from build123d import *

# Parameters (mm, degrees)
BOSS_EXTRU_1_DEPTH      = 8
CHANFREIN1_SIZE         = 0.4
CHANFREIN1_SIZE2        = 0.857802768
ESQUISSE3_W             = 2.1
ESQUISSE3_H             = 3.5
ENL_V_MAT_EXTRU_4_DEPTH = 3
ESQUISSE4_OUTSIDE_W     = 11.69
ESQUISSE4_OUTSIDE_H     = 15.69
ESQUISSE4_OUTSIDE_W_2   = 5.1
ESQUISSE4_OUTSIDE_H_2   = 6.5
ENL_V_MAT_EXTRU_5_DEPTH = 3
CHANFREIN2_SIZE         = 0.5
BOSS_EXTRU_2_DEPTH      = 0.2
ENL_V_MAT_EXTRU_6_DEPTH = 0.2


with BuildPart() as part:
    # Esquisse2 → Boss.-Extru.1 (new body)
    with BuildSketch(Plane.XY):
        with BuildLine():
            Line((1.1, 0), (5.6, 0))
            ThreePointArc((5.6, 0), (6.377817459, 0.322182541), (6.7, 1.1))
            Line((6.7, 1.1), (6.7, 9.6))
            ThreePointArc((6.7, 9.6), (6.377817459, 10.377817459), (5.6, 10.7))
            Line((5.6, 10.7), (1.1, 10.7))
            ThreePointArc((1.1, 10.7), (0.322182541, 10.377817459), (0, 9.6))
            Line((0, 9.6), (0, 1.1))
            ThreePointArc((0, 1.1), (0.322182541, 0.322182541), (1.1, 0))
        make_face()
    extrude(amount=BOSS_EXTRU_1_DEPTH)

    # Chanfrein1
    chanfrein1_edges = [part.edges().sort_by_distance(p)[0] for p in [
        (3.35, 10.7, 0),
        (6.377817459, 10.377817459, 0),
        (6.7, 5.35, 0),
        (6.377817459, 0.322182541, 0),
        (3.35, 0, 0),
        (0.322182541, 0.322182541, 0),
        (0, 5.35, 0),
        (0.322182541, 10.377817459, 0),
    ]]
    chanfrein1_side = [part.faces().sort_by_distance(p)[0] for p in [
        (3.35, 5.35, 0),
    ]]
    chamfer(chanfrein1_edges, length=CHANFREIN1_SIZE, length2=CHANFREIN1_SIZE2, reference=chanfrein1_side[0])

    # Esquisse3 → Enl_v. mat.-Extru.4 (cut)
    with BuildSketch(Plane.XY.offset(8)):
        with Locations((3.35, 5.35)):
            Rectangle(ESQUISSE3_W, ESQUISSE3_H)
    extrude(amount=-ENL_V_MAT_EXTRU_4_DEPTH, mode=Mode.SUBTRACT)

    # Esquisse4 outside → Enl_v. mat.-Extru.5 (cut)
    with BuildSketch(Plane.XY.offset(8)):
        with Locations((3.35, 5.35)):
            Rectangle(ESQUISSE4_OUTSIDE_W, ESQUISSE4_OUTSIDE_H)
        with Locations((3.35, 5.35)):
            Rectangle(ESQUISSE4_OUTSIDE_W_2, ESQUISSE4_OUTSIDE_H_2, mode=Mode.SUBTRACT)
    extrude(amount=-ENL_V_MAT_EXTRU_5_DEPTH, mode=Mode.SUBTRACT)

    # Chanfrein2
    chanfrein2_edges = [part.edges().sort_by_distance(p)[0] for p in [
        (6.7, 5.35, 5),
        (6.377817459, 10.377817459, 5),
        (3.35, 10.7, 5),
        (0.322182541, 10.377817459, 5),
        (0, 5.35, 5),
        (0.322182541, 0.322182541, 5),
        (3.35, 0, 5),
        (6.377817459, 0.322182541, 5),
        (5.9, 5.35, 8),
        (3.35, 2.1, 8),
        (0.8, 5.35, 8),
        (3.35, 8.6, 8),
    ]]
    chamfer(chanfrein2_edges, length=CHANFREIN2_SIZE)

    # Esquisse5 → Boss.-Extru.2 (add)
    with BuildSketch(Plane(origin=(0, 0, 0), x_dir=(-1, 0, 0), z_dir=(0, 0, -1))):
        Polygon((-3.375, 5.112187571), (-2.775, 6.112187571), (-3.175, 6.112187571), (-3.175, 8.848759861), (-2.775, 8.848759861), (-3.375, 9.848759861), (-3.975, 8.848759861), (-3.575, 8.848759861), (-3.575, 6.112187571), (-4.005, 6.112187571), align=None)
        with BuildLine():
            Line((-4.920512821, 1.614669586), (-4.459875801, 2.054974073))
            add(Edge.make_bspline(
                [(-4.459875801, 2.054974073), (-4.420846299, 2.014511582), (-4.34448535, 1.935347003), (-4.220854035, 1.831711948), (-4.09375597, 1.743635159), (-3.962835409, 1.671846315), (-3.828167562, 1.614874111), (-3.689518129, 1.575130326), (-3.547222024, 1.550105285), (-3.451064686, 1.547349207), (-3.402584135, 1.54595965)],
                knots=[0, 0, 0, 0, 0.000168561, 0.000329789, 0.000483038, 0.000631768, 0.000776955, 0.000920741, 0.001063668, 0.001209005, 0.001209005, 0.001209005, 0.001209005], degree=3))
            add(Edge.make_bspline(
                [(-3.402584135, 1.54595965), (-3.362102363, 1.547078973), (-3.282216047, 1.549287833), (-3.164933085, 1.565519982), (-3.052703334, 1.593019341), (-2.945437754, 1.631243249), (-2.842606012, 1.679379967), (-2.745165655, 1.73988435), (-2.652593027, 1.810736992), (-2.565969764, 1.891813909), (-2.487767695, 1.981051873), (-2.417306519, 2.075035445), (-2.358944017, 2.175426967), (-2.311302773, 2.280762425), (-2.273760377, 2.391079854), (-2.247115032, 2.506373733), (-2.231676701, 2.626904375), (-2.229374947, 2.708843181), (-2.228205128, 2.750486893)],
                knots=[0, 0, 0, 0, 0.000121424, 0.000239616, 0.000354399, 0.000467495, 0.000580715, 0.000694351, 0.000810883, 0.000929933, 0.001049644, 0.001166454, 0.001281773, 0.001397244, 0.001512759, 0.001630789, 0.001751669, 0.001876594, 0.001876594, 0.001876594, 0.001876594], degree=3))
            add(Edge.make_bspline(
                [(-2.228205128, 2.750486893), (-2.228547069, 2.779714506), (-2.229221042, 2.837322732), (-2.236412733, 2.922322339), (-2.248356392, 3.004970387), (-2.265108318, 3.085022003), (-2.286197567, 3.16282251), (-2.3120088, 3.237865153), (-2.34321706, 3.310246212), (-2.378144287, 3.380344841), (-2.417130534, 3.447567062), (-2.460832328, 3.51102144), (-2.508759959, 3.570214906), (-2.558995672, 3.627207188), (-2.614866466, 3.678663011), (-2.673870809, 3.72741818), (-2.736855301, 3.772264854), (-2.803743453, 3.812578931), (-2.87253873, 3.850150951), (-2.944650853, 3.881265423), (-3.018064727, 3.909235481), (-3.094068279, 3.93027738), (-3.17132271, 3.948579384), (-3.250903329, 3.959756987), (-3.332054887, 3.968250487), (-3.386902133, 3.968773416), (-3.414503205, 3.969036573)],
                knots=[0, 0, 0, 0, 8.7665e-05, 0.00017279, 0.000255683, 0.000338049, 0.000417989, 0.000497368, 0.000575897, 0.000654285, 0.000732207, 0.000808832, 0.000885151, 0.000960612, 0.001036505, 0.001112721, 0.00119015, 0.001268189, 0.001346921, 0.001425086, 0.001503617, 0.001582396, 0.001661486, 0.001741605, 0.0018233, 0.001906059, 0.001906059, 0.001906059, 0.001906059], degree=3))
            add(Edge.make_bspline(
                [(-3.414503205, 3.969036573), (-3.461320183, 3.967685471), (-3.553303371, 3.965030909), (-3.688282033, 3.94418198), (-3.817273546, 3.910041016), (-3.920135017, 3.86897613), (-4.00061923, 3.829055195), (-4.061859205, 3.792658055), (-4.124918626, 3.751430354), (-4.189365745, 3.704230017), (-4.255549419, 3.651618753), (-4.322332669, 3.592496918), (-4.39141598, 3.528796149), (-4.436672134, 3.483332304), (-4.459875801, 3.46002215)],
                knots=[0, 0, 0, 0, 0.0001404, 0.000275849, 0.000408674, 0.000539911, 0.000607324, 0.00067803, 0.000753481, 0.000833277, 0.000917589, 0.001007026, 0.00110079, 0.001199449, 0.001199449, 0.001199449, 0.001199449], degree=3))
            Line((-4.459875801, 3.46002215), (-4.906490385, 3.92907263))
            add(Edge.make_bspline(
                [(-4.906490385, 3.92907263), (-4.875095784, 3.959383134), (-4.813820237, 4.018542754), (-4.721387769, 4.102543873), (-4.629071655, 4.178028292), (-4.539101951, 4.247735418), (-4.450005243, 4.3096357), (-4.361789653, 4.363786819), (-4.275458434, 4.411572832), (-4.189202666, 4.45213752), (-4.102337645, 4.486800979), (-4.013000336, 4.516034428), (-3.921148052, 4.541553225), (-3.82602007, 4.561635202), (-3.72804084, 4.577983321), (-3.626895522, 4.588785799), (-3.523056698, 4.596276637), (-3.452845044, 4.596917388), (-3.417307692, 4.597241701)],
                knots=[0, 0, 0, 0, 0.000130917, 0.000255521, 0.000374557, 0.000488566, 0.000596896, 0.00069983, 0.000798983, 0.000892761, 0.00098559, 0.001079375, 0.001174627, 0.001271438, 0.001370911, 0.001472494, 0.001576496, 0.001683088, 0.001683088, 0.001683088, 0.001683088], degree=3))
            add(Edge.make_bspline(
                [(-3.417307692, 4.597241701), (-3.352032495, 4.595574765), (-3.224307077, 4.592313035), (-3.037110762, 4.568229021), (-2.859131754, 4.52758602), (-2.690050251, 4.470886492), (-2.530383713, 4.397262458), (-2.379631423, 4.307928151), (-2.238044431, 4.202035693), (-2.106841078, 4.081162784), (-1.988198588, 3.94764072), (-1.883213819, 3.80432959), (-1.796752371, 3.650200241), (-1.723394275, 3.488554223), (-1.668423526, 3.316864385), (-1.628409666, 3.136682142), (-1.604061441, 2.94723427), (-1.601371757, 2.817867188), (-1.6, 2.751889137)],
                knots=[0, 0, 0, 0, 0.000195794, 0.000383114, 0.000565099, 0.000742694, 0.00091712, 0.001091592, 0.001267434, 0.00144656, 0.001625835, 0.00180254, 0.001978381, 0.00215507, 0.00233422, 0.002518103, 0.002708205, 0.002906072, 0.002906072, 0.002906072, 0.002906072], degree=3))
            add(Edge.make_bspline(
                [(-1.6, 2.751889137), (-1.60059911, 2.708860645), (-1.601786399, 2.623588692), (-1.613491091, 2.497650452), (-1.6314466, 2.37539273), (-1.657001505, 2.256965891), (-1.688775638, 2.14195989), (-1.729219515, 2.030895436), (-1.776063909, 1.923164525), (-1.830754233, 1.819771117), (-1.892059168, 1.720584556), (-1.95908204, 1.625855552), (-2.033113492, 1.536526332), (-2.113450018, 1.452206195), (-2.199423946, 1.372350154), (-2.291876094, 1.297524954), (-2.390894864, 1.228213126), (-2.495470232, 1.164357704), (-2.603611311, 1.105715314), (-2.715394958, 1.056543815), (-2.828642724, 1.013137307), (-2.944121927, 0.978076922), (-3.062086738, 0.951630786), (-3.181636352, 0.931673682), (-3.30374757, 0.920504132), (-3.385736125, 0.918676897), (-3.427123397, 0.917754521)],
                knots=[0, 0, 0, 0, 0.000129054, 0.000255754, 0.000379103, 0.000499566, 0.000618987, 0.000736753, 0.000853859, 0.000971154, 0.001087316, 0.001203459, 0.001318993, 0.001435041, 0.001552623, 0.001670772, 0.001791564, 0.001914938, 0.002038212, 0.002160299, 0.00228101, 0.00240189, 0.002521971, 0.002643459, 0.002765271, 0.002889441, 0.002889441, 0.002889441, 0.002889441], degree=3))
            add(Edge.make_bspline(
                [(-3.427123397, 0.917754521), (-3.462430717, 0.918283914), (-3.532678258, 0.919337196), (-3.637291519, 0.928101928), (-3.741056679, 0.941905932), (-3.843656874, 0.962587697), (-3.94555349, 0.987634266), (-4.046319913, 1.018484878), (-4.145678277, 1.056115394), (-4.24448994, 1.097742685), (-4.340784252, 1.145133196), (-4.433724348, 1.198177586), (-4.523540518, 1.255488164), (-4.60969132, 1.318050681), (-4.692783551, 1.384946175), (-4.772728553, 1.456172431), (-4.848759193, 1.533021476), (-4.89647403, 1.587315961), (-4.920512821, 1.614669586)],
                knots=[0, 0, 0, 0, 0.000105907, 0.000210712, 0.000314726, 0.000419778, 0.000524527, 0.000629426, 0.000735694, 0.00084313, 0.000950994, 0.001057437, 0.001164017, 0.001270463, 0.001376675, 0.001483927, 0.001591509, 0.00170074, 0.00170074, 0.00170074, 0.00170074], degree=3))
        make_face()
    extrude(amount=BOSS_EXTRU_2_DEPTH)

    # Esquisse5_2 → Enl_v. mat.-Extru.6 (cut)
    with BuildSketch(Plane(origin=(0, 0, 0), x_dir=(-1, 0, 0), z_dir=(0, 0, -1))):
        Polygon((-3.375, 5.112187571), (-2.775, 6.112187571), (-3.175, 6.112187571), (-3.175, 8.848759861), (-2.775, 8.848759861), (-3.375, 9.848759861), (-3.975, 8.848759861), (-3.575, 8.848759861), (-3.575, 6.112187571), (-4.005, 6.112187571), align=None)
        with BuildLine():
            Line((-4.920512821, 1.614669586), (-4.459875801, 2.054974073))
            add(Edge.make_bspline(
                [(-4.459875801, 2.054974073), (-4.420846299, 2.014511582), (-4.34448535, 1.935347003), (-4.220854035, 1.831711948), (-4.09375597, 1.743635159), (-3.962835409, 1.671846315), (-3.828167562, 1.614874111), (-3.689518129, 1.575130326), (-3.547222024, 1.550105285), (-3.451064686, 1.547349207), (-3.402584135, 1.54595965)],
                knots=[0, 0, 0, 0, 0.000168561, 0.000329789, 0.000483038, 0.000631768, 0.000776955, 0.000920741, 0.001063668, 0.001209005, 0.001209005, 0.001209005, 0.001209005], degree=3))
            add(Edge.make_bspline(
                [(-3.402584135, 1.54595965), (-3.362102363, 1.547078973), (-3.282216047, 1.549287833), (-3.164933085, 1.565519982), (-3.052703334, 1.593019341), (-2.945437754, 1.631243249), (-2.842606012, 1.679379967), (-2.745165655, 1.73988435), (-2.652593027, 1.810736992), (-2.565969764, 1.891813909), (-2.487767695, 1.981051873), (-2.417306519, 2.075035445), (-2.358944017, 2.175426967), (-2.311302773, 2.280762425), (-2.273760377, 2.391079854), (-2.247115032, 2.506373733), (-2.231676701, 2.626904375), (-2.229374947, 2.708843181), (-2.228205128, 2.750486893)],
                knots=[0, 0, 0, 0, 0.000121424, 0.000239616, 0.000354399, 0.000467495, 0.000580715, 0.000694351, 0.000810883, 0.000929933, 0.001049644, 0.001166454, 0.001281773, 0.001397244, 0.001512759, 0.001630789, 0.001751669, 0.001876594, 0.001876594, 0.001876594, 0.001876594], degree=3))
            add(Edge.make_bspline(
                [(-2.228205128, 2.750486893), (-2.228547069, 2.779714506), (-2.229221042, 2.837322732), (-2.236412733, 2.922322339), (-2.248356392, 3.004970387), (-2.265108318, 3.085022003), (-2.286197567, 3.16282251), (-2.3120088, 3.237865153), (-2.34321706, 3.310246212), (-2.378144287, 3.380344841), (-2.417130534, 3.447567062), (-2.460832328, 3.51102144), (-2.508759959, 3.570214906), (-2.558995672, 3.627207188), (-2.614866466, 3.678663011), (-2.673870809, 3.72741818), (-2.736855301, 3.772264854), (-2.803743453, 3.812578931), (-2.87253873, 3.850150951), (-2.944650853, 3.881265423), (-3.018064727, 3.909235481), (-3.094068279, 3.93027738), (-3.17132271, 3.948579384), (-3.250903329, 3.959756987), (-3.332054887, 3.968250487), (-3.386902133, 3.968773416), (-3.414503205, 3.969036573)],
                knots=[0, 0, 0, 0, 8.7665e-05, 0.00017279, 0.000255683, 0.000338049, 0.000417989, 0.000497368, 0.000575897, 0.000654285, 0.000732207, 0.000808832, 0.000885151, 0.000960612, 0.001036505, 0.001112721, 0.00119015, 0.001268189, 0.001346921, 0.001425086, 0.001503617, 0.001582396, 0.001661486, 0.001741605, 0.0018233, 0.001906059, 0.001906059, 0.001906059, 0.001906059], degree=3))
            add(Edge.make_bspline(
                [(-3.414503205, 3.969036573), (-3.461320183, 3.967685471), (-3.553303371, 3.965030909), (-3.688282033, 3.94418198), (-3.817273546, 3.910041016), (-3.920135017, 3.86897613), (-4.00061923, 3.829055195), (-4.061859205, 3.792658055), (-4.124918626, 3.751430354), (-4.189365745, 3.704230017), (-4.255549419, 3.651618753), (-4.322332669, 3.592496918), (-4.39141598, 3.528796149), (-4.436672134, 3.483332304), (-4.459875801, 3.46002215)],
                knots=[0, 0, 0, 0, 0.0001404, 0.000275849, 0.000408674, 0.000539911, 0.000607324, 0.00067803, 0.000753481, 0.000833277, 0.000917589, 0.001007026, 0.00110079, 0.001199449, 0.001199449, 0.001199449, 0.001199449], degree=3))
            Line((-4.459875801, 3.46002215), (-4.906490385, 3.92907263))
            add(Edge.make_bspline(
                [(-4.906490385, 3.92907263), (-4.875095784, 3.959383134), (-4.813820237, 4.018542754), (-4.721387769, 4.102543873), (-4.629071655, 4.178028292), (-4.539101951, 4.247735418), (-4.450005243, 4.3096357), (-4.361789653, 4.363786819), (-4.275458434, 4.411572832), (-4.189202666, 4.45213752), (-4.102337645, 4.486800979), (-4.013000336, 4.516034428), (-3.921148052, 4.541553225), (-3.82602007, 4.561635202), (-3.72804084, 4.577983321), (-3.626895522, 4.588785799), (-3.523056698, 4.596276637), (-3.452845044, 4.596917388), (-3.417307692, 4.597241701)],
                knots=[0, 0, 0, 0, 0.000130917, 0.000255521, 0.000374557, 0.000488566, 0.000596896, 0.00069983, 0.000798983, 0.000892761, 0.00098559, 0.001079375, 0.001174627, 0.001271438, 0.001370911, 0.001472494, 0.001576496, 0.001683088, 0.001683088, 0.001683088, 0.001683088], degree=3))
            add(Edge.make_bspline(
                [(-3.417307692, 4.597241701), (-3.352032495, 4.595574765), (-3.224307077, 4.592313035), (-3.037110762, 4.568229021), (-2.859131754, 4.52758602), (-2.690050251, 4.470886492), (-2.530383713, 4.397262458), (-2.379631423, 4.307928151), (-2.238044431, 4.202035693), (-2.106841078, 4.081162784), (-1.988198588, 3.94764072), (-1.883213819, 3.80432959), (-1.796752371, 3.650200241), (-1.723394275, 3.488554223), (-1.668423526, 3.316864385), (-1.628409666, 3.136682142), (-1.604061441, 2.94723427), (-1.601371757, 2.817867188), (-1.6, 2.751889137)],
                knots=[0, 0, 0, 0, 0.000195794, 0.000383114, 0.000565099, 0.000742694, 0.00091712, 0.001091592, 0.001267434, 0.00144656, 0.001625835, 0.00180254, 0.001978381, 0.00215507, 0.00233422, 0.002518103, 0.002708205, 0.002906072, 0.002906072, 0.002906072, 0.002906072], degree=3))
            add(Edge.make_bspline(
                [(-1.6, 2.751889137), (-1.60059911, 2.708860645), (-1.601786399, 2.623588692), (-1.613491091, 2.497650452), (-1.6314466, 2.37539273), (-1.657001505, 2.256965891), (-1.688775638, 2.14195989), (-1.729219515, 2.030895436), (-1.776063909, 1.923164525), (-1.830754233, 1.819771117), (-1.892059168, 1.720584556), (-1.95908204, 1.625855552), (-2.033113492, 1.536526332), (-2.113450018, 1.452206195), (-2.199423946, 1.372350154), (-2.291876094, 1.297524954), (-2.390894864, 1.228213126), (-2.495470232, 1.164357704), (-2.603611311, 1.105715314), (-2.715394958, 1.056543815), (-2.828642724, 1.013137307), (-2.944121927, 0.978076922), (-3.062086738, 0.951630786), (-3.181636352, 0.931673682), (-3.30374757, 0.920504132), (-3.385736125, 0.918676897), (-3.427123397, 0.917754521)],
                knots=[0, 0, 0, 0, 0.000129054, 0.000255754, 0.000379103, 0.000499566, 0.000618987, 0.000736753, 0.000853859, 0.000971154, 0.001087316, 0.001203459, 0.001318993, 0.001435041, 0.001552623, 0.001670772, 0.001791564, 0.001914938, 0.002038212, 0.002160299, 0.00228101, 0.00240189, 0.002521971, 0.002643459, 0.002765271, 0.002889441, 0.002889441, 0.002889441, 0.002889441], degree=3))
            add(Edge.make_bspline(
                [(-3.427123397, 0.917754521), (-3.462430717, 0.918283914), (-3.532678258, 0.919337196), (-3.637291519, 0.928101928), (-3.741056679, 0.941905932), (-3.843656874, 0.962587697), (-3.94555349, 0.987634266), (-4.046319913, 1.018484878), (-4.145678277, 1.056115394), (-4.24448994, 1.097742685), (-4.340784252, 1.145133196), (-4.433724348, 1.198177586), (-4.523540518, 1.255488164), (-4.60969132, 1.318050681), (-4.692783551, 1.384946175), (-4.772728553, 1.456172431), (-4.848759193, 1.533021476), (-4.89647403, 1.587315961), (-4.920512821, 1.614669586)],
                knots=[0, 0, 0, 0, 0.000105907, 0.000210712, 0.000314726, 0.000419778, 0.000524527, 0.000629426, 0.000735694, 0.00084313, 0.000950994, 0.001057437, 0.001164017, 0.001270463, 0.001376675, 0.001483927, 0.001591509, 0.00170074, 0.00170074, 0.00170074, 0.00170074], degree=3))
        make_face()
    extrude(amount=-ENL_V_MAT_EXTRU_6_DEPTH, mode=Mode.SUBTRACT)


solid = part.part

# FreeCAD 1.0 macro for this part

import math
import FreeCAD as App
import Part
import Sketcher
from FreeCAD import Vector
Q = App.Units.Quantity


def edges_at(feature, points):
    """Names of the edges that pass closest to the given points."""
    edges = feature.Shape.Edges
    near = lambda p: min(range(len(edges)), key=lambda i: edges[i].distToShape(Part.Vertex(*p))[0])
    return sorted({f"Edge{near(p) + 1}" for p in points})

doc = App.newDocument("Part")
body = doc.addObject("PartDesign::Body", "Body")
body.AllowCompound = True

# Sketch on XY plane
sketch1 = body.newObject("Sketcher::SketchObject", "Sketch")
sketch1.AttachmentSupport = (doc.getObject("XY_Plane"), [""])
sketch1.MapMode = "FlatFace"
sketch1.addGeometry([
    Part.LineSegment(Vector(1.1, 0, 0), Vector(5.6, 0, 0)),  # 0
    Part.ArcOfCircle(Part.Circle(Vector(5.6, 1.1, 0), Vector(0, 0, 1), 1.1), math.radians(-90), math.radians(0)),  # 1
    Part.LineSegment(Vector(6.7, 1.1, 0), Vector(6.7, 9.6, 0)),  # 2
    Part.ArcOfCircle(Part.Circle(Vector(5.6, 9.6, 0), Vector(0, 0, 1), 1.1), math.radians(0), math.radians(90)),  # 3
    Part.LineSegment(Vector(5.6, 10.7, 0), Vector(1.1, 10.7, 0)),  # 4
    Part.ArcOfCircle(Part.Circle(Vector(1.1, 9.6, 0), Vector(0, 0, 1), 1.1), math.radians(90), math.radians(180)),  # 5
    Part.LineSegment(Vector(0, 9.6, 0), Vector(0, 1.1, 0)),  # 6
    Part.ArcOfCircle(Part.Circle(Vector(1.1, 1.1, 0), Vector(0, 0, 1), 1.1), math.radians(-180), math.radians(-90)),  # 7
], False)
sketch1.addConstraint([
    Sketcher.Constraint("Tangent", 0, 2, 1, 1),
    Sketcher.Constraint("Tangent", 1, 2, 2, 1),
    Sketcher.Constraint("Tangent", 2, 2, 3, 1),
    Sketcher.Constraint("Tangent", 3, 2, 4, 1),
    Sketcher.Constraint("Tangent", 4, 2, 5, 1),
    Sketcher.Constraint("Tangent", 5, 2, 6, 1),
    Sketcher.Constraint("Tangent", 6, 2, 7, 1),
    Sketcher.Constraint("Tangent", 7, 2, 0, 1),
    Sketcher.Constraint("Horizontal", 0),
    Sketcher.Constraint("Vertical", 2),
    Sketcher.Constraint("Horizontal", 4),
    Sketcher.Constraint("Vertical", 6),
    Sketcher.Constraint("Equal", 1, 3),
    Sketcher.Constraint("Equal", 3, 5),
    Sketcher.Constraint("Equal", 5, 7),
    Sketcher.Constraint("PointOnObject", 0, 2, -1),
    Sketcher.Constraint("PointOnObject", 5, 2, -2),
    Sketcher.Constraint("Radius", 1, Q("1.1 mm")),
    Sketcher.Constraint("DistanceX", 0, 1, 0, 2, Q("4.5 mm")),
    Sketcher.Constraint("DistanceY", 2, 1, 2, 2, Q("8.5 mm")),
])
pad1 = body.newObject("PartDesign::Pad", "Pad")
pad1.Profile = sketch1
pad1.Length = 8
doc.recompute()

chamfer = body.newObject("PartDesign::Chamfer", "Chamfer")
chamfer.Base = (pad1, edges_at(pad1, [
    (3.35, 10.7, 0),
    (6.378, 10.378, 0),
    (6.7, 5.35, 0),
    (6.378, 0.322, 0),
    (3.35, 0, 0),
    (0.322, 0.322, 0),
    (0, 5.35, 0),
    (0.322, 10.378, 0),
]))
chamfer.ChamferType = "Two distances"
chamfer.Size = 0.4
chamfer.Size2 = 0.857803
chamfer.FlipDirection = True

# Sketch on XY plane
sketch2 = body.newObject("Sketcher::SketchObject", "Sketch001")
sketch2.AttachmentSupport = (doc.getObject("XY_Plane"), [""])
sketch2.MapMode = "FlatFace"
sketch2.AttachmentOffset = App.Placement(Vector(0, 0, 8), App.Rotation())
sketch2.addGeometry([
    Part.LineSegment(Vector(2.3, 7.1, 0), Vector(2.3, 3.6, 0)),
    Part.LineSegment(Vector(2.3, 3.6, 0), Vector(4.4, 3.6, 0)),
    Part.LineSegment(Vector(4.4, 3.6, 0), Vector(4.4, 7.1, 0)),
    Part.LineSegment(Vector(4.4, 7.1, 0), Vector(2.3, 7.1, 0)),
], False)
sketch2.addConstraint([
    Sketcher.Constraint("Coincident", 0, 2, 1, 1),
    Sketcher.Constraint("Coincident", 1, 2, 2, 1),
    Sketcher.Constraint("Coincident", 2, 2, 3, 1),
    Sketcher.Constraint("Coincident", 3, 2, 0, 1),
    Sketcher.Constraint("Vertical", 0),
    Sketcher.Constraint("Horizontal", 1),
    Sketcher.Constraint("Vertical", 2),
    Sketcher.Constraint("Horizontal", 3),
    Sketcher.Constraint("DistanceX", 1, 1, 1, 2, Q("2.1 mm")),
    Sketcher.Constraint("DistanceY", 0, 2, 0, 1, Q("3.5 mm")),
    Sketcher.Constraint("DistanceX", -1, 1, 0, 2, Q("2.3 mm")),
    Sketcher.Constraint("DistanceY", -1, 1, 0, 2, Q("3.6 mm")),
])
pocket1 = body.newObject("PartDesign::Pocket", "Pocket")
pocket1.Profile = sketch2
pocket1.Length = 3

# Sketch on XY plane
sketch3 = body.newObject("Sketcher::SketchObject", "Sketch002")
sketch3.AttachmentSupport = (doc.getObject("XY_Plane"), [""])
sketch3.MapMode = "FlatFace"
sketch3.AttachmentOffset = App.Placement(Vector(0, 0, 8), App.Rotation())
sketch3.addGeometry([
    Part.LineSegment(Vector(-2.495, 13.195, 0), Vector(-2.495, -2.495, 0)),  # 0
    Part.LineSegment(Vector(-2.495, -2.495, 0), Vector(9.195, -2.495, 0)),  # 1
    Part.LineSegment(Vector(9.195, -2.495, 0), Vector(9.195, 13.195, 0)),  # 2
    Part.LineSegment(Vector(9.195, 13.195, 0), Vector(-2.495, 13.195, 0)),  # 3
    Part.LineSegment(Vector(5.9, 2.1, 0), Vector(0.8, 2.1, 0)),  # 4
    Part.LineSegment(Vector(0.8, 2.1, 0), Vector(0.8, 8.6, 0)),  # 5
    Part.LineSegment(Vector(0.8, 8.6, 0), Vector(5.9, 8.6, 0)),  # 6
    Part.LineSegment(Vector(5.9, 8.6, 0), Vector(5.9, 2.1, 0)),  # 7
], False)
sketch3.addConstraint([
    Sketcher.Constraint("Coincident", 0, 2, 1, 1),
    Sketcher.Constraint("Coincident", 1, 2, 2, 1),
    Sketcher.Constraint("Coincident", 2, 2, 3, 1),
    Sketcher.Constraint("Coincident", 3, 2, 0, 1),
    Sketcher.Constraint("Coincident", 4, 2, 5, 1),
    Sketcher.Constraint("Coincident", 5, 2, 6, 1),
    Sketcher.Constraint("Coincident", 6, 2, 7, 1),
    Sketcher.Constraint("Coincident", 7, 2, 4, 1),
    Sketcher.Constraint("Vertical", 0),
    Sketcher.Constraint("Horizontal", 1),
    Sketcher.Constraint("Vertical", 2),
    Sketcher.Constraint("Horizontal", 3),
    Sketcher.Constraint("Horizontal", 4),
    Sketcher.Constraint("Vertical", 5),
    Sketcher.Constraint("Horizontal", 6),
    Sketcher.Constraint("Vertical", 7),
    Sketcher.Constraint("DistanceX", 4, 2, 4, 1, Q("5.1 mm")),
    Sketcher.Constraint("DistanceY", 5, 1, 5, 2, Q("6.5 mm")),
    Sketcher.Constraint("DistanceX", 1, 1, 1, 2, Q("11.69 mm")),
    Sketcher.Constraint("DistanceY", 0, 2, 0, 1, Q("15.69 mm")),
    Sketcher.Constraint("DistanceX", -1, 1, 4, 2, Q("0.8 mm")),
    Sketcher.Constraint("DistanceY", -1, 1, 4, 2, Q("2.1 mm")),
    Sketcher.Constraint("DistanceX", 0, 2, -1, 1, Q("2.495 mm")),
    Sketcher.Constraint("DistanceY", 0, 2, -1, 1, Q("2.495 mm")),
])
pocket2 = body.newObject("PartDesign::Pocket", "Pocket001")
pocket2.Profile = sketch3
pocket2.Length = 3
doc.recompute()

chamfer2 = body.newObject("PartDesign::Chamfer", "Chamfer001")
chamfer2.Base = (pocket2, edges_at(pocket2, [
    (6.7, 5.35, 5),
    (6.378, 10.378, 5),
    (3.35, 10.7, 5),
    (0.322, 10.378, 5),
    (0, 5.35, 5),
    (0.322, 0.322, 5),
    (3.35, 0, 5),
    (6.378, 0.322, 5),
    (5.9, 5.35, 8),
    (3.35, 2.1, 8),
    (0.8, 5.35, 8),
    (3.35, 8.6, 8),
]))
chamfer2.Size = 0.5

# Sketch on XY plane
sketch4 = body.newObject("Sketcher::SketchObject", "Sketch003")
sketch4.AttachmentSupport = (doc.getObject("XY_Plane"), [""])
sketch4.MapMode = "FlatFace"
sketch4.addGeometry([
    Part.LineSegment(Vector(3.375, 5.112188, 0), Vector(2.775, 6.112188, 0)),  # 0
    Part.LineSegment(Vector(2.775, 6.112188, 0), Vector(3.175, 6.112188, 0)),  # 1
    Part.LineSegment(Vector(3.175, 6.112188, 0), Vector(3.175, 8.84876, 0)),  # 2
    Part.LineSegment(Vector(3.175, 8.84876, 0), Vector(2.775, 8.84876, 0)),  # 3
    Part.LineSegment(Vector(2.775, 8.84876, 0), Vector(3.375, 9.84876, 0)),  # 4
    Part.LineSegment(Vector(3.375, 9.84876, 0), Vector(3.975, 8.84876, 0)),  # 5
    Part.LineSegment(Vector(3.975, 8.84876, 0), Vector(3.575, 8.84876, 0)),  # 6
    Part.LineSegment(Vector(3.575, 8.84876, 0), Vector(3.575, 6.112188, 0)),  # 7
    Part.LineSegment(Vector(3.575, 6.112188, 0), Vector(4.005, 6.112188, 0)),  # 8
    Part.LineSegment(Vector(4.005, 6.112188, 0), Vector(3.375, 5.112188, 0)),  # 9
    Part.LineSegment(Vector(4.459876, 2.054974, 0), Vector(4.920513, 1.61467, 0)),  # 10
    Part.BSplineCurve([Vector(3.427123, 0.917755, 0), Vector(3.462431, 0.918284, 0), Vector(3.532678, 0.919337, 0), Vector(3.637292, 0.928102, 0), Vector(3.741057, 0.941906, 0), Vector(3.843657, 0.962588, 0), Vector(3.945553, 0.987634, 0), Vector(4.04632, 1.018485, 0), Vector(4.145678, 1.056115, 0), Vector(4.24449, 1.097743, 0), Vector(4.340784, 1.145133, 0), Vector(4.433724, 1.198178, 0), Vector(4.523541, 1.255488, 0), Vector(4.609691, 1.318051, 0), Vector(4.692784, 1.384946, 0), Vector(4.772729, 1.456172, 0), Vector(4.848759, 1.533021, 0), Vector(4.896474, 1.587316, 0), Vector(4.920513, 1.61467, 0)], [4, 1, 1, 1, 1, 1, 1, 1, 1, 1, 1, 1, 1, 1, 1, 1, 4], [0, 0.000105907, 0.000210712, 0.000314726, 0.000419778, 0.000524527, 0.000629426, 0.000735694, 0.00084313, 0.000950994, 0.001057437, 0.001164017, 0.001270463, 0.001376675, 0.001483927, 0.001591509, 0.00170074], False, 3, [1, 1, 1, 1, 1, 1, 1, 1, 1, 1, 1, 1, 1, 1, 1, 1, 1, 1, 1], False),  # 11
    Part.BSplineCurve([Vector(1.6, 2.751889, 0), Vector(1.600599, 2.708861, 0), Vector(1.601786, 2.623589, 0), Vector(1.613491, 2.49765, 0), Vector(1.631447, 2.375393, 0), Vector(1.657002, 2.256966, 0), Vector(1.688776, 2.14196, 0), Vector(1.72922, 2.030895, 0), Vector(1.776064, 1.923165, 0), Vector(1.830754, 1.819771, 0), Vector(1.892059, 1.720585, 0), Vector(1.959082, 1.625856, 0), Vector(2.033113, 1.536526, 0), Vector(2.11345, 1.452206, 0), Vector(2.199424, 1.37235, 0), Vector(2.291876, 1.297525, 0), Vector(2.390895, 1.228213, 0), Vector(2.49547, 1.164358, 0), Vector(2.603611, 1.105715, 0), Vector(2.715395, 1.056544, 0), Vector(2.828643, 1.013137, 0), Vector(2.944122, 0.978077, 0), Vector(3.062087, 0.951631, 0), Vector(3.181636, 0.931674, 0), Vector(3.303748, 0.920504, 0), Vector(3.385736, 0.918677, 0), Vector(3.427123, 0.917755, 0)], [4, 1, 1, 1, 1, 1, 1, 1, 1, 1, 1, 1, 1, 1, 1, 1, 1, 1, 1, 1, 1, 1, 1, 1, 4], [0, 0.000129054, 0.000255754, 0.000379103, 0.000499566, 0.000618987, 0.000736753, 0.000853859, 0.000971154, 0.001087316, 0.001203459, 0.001318993, 0.001435041, 0.001552623, 0.001670772, 0.001791564, 0.001914938, 0.002038212, 0.002160299, 0.00228101, 0.00240189, 0.002521971, 0.002643459, 0.002765271, 0.002889441], False, 3, [1, 1, 1, 1, 1, 1, 1, 1, 1, 1, 1, 1, 1, 1, 1, 1, 1, 1, 1, 1, 1, 1, 1, 1, 1, 1, 1], False),  # 12
    Part.BSplineCurve([Vector(3.417308, 4.597242, 0), Vector(3.352032, 4.595575, 0), Vector(3.224307, 4.592313, 0), Vector(3.037111, 4.568229, 0), Vector(2.859132, 4.527586, 0), Vector(2.69005, 4.470886, 0), Vector(2.530384, 4.397262, 0), Vector(2.379631, 4.307928, 0), Vector(2.238044, 4.202036, 0), Vector(2.106841, 4.081163, 0), Vector(1.988199, 3.947641, 0), Vector(1.883214, 3.80433, 0), Vector(1.796752, 3.6502, 0), Vector(1.723394, 3.488554, 0), Vector(1.668424, 3.316864, 0), Vector(1.62841, 3.136682, 0), Vector(1.604061, 2.947234, 0), Vector(1.601372, 2.817867, 0), Vector(1.6, 2.751889, 0)], [4, 1, 1, 1, 1, 1, 1, 1, 1, 1, 1, 1, 1, 1, 1, 1, 4], [0, 0.000195794, 0.000383114, 0.000565099, 0.000742694, 0.00091712, 0.001091592, 0.001267434, 0.00144656, 0.001625835, 0.00180254, 0.001978381, 0.00215507, 0.00233422, 0.002518103, 0.002708205, 0.002906072], False, 3, [1, 1, 1, 1, 1, 1, 1, 1, 1, 1, 1, 1, 1, 1, 1, 1, 1, 1, 1], False),  # 13
    Part.BSplineCurve([Vector(4.90649, 3.929073, 0), Vector(4.875096, 3.959383, 0), Vector(4.81382, 4.018543, 0), Vector(4.721388, 4.102544, 0), Vector(4.629072, 4.178028, 0), Vector(4.539102, 4.247735, 0), Vector(4.450005, 4.309636, 0), Vector(4.36179, 4.363787, 0), Vector(4.275458, 4.411573, 0), Vector(4.189203, 4.452138, 0), Vector(4.102338, 4.486801, 0), Vector(4.013, 4.516034, 0), Vector(3.921148, 4.541553, 0), Vector(3.82602, 4.561635, 0), Vector(3.728041, 4.577983, 0), Vector(3.626896, 4.588786, 0), Vector(3.523057, 4.596277, 0), Vector(3.452845, 4.596917, 0), Vector(3.417308, 4.597242, 0)], [4, 1, 1, 1, 1, 1, 1, 1, 1, 1, 1, 1, 1, 1, 1, 1, 4], [0, 0.000130917, 0.000255521, 0.000374557, 0.000488566, 0.000596896, 0.00069983, 0.000798983, 0.000892761, 0.00098559, 0.001079375, 0.001174627, 0.001271438, 0.001370911, 0.001472494, 0.001576496, 0.001683088], False, 3, [1, 1, 1, 1, 1, 1, 1, 1, 1, 1, 1, 1, 1, 1, 1, 1, 1, 1, 1], False),  # 14
    Part.LineSegment(Vector(4.90649, 3.929073, 0), Vector(4.459876, 3.460022, 0)),  # 15
    Part.BSplineCurve([Vector(3.414503, 3.969037, 0), Vector(3.46132, 3.967685, 0), Vector(3.553303, 3.965031, 0), Vector(3.688282, 3.944182, 0), Vector(3.817274, 3.910041, 0), Vector(3.920135, 3.868976, 0), Vector(4.000619, 3.829055, 0), Vector(4.061859, 3.792658, 0), Vector(4.124919, 3.75143, 0), Vector(4.189366, 3.70423, 0), Vector(4.255549, 3.651619, 0), Vector(4.322333, 3.592497, 0), Vector(4.391416, 3.528796, 0), Vector(4.436672, 3.483332, 0), Vector(4.459876, 3.460022, 0)], [4, 1, 1, 1, 1, 1, 1, 1, 1, 1, 1, 1, 4], [0, 0.0001404, 0.000275849, 0.000408674, 0.000539911, 0.000607324, 0.00067803, 0.000753481, 0.000833277, 0.000917589, 0.001007026, 0.00110079, 0.001199449], False, 3, [1, 1, 1, 1, 1, 1, 1, 1, 1, 1, 1, 1, 1, 1, 1], False),  # 16
    Part.BSplineCurve([Vector(2.228205, 2.750487, 0), Vector(2.228547, 2.779715, 0), Vector(2.229221, 2.837323, 0), Vector(2.236413, 2.922322, 0), Vector(2.248356, 3.00497, 0), Vector(2.265108, 3.085022, 0), Vector(2.286198, 3.162823, 0), Vector(2.312009, 3.237865, 0), Vector(2.343217, 3.310246, 0), Vector(2.378144, 3.380345, 0), Vector(2.417131, 3.447567, 0), Vector(2.460832, 3.511021, 0), Vector(2.50876, 3.570215, 0), Vector(2.558996, 3.627207, 0), Vector(2.614866, 3.678663, 0), Vector(2.673871, 3.727418, 0), Vector(2.736855, 3.772265, 0), Vector(2.803743, 3.812579, 0), Vector(2.872539, 3.850151, 0), Vector(2.944651, 3.881265, 0), Vector(3.018065, 3.909235, 0), Vector(3.094068, 3.930277, 0), Vector(3.171323, 3.948579, 0), Vector(3.250903, 3.959757, 0), Vector(3.332055, 3.96825, 0), Vector(3.386902, 3.968773, 0), Vector(3.414503, 3.969037, 0)], [4, 1, 1, 1, 1, 1, 1, 1, 1, 1, 1, 1, 1, 1, 1, 1, 1, 1, 1, 1, 1, 1, 1, 1, 4], [0, 0.000087665, 0.00017279, 0.000255683, 0.000338049, 0.000417989, 0.000497368, 0.000575897, 0.000654285, 0.000732207, 0.000808832, 0.000885151, 0.000960612, 0.001036505, 0.001112721, 0.00119015, 0.001268189, 0.001346921, 0.001425086, 0.001503617, 0.001582396, 0.001661486, 0.001741605, 0.0018233, 0.001906059], False, 3, [1, 1, 1, 1, 1, 1, 1, 1, 1, 1, 1, 1, 1, 1, 1, 1, 1, 1, 1, 1, 1, 1, 1, 1, 1, 1, 1], False),  # 17
    Part.BSplineCurve([Vector(3.402584, 1.54596, 0), Vector(3.362102, 1.547079, 0), Vector(3.282216, 1.549288, 0), Vector(3.164933, 1.56552, 0), Vector(3.052703, 1.593019, 0), Vector(2.945438, 1.631243, 0), Vector(2.842606, 1.67938, 0), Vector(2.745166, 1.739884, 0), Vector(2.652593, 1.810737, 0), Vector(2.56597, 1.891814, 0), Vector(2.487768, 1.981052, 0), Vector(2.417307, 2.075035, 0), Vector(2.358944, 2.175427, 0), Vector(2.311303, 2.280762, 0), Vector(2.27376, 2.39108, 0), Vector(2.247115, 2.506374, 0), Vector(2.231677, 2.626904, 0), Vector(2.229375, 2.708843, 0), Vector(2.228205, 2.750487, 0)], [4, 1, 1, 1, 1, 1, 1, 1, 1, 1, 1, 1, 1, 1, 1, 1, 4], [0, 0.000121424, 0.000239616, 0.000354399, 0.000467495, 0.000580715, 0.000694351, 0.000810883, 0.000929933, 0.001049644, 0.001166454, 0.001281773, 0.001397244, 0.001512759, 0.001630789, 0.001751669, 0.001876594], False, 3, [1, 1, 1, 1, 1, 1, 1, 1, 1, 1, 1, 1, 1, 1, 1, 1, 1, 1, 1], False),  # 18
    Part.BSplineCurve([Vector(4.459876, 2.054974, 0), Vector(4.420846, 2.014512, 0), Vector(4.344485, 1.935347, 0), Vector(4.220854, 1.831712, 0), Vector(4.093756, 1.743635, 0), Vector(3.962835, 1.671846, 0), Vector(3.828168, 1.614874, 0), Vector(3.689518, 1.57513, 0), Vector(3.547222, 1.550105, 0), Vector(3.451065, 1.547349, 0), Vector(3.402584, 1.54596, 0)], [4, 1, 1, 1, 1, 1, 1, 1, 4], [0, 0.000168561, 0.000329789, 0.000483038, 0.000631768, 0.000776955, 0.000920741, 0.001063668, 0.001209005], False, 3, [1, 1, 1, 1, 1, 1, 1, 1, 1, 1, 1], False),  # 19
], False)
sketch4.addConstraint([
    Sketcher.Constraint("Block", 11),
    Sketcher.Constraint("Block", 12),
    Sketcher.Constraint("Block", 13),
    Sketcher.Constraint("Block", 14),
    Sketcher.Constraint("Block", 16),
    Sketcher.Constraint("Block", 17),
    Sketcher.Constraint("Block", 18),
    Sketcher.Constraint("Block", 19),
    Sketcher.Constraint("Coincident", 0, 2, 1, 1),
    Sketcher.Constraint("Coincident", 1, 2, 2, 1),
    Sketcher.Constraint("Coincident", 2, 2, 3, 1),
    Sketcher.Constraint("Coincident", 3, 2, 4, 1),
    Sketcher.Constraint("Coincident", 4, 2, 5, 1),
    Sketcher.Constraint("Coincident", 5, 2, 6, 1),
    Sketcher.Constraint("Coincident", 6, 2, 7, 1),
    Sketcher.Constraint("Coincident", 7, 2, 8, 1),
    Sketcher.Constraint("Coincident", 8, 2, 9, 1),
    Sketcher.Constraint("Coincident", 9, 2, 0, 1),
    Sketcher.Constraint("Coincident", 10, 2, 11, 2),
    Sketcher.Constraint("Coincident", 14, 1, 15, 1),
    Sketcher.Constraint("Coincident", 15, 2, 16, 2),
    Sketcher.Constraint("Coincident", 19, 1, 10, 1),
    Sketcher.Constraint("Horizontal", 1),
    Sketcher.Constraint("Vertical", 2),
    Sketcher.Constraint("Horizontal", 3),
    Sketcher.Constraint("Horizontal", 6),
    Sketcher.Constraint("Vertical", 7),
    Sketcher.Constraint("Horizontal", 8),
    Sketcher.Constraint("Parallel", 0, 5),
    Sketcher.Constraint("Horizontal", 3, 2, 5, 2),
    Sketcher.Constraint("Horizontal", 1, 2, 7, 2),
    Sketcher.Constraint("Vertical", 0, 2, 3, 2),
    Sketcher.Constraint("Vertical", 4, 2, 9, 2),
    Sketcher.Constraint("Equal", 3, 6),
    Sketcher.Constraint("Equal", 0, 4),
    Sketcher.Constraint("DistanceX", 1, 1, 1, 2, Q("0.4 mm")),
    Sketcher.Constraint("DistanceY", 2, 2, 4, 2, Q("1 mm")),
    Sketcher.Constraint("DistanceX", 8, 1, 8, 2, Q("0.43 mm")),
    Sketcher.Constraint("DistanceX", 2, 2, 4, 2, Q("0.2 mm")),
    Sketcher.Constraint("DistanceX", -1, 1, 0, 2, Q("2.775 mm")),
    Sketcher.Constraint("DistanceY", 2, 1, 2, 2, Q("2.736572 mm")),
    Sketcher.Constraint("DistanceY", -1, 1, 2, 2, Q("8.84876 mm")),
])
pad2 = body.newObject("PartDesign::Pad", "Pad001")
pad2.Profile = sketch4
pad2.Length = 0.2
pad2.Reversed = True

# Sketch on XY plane
sketch5 = body.newObject("Sketcher::SketchObject", "Sketch004")
sketch5.AttachmentSupport = (doc.getObject("XY_Plane"), [""])
sketch5.MapMode = "FlatFace"
sketch5.addGeometry([
    Part.LineSegment(Vector(3.375, 5.112188, 0), Vector(2.775, 6.112188, 0)),  # 0
    Part.LineSegment(Vector(2.775, 6.112188, 0), Vector(3.175, 6.112188, 0)),  # 1
    Part.LineSegment(Vector(3.175, 6.112188, 0), Vector(3.175, 8.84876, 0)),  # 2
    Part.LineSegment(Vector(3.175, 8.84876, 0), Vector(2.775, 8.84876, 0)),  # 3
    Part.LineSegment(Vector(2.775, 8.84876, 0), Vector(3.375, 9.84876, 0)),  # 4
    Part.LineSegment(Vector(3.375, 9.84876, 0), Vector(3.975, 8.84876, 0)),  # 5
    Part.LineSegment(Vector(3.975, 8.84876, 0), Vector(3.575, 8.84876, 0)),  # 6
    Part.LineSegment(Vector(3.575, 8.84876, 0), Vector(3.575, 6.112188, 0)),  # 7
    Part.LineSegment(Vector(3.575, 6.112188, 0), Vector(4.005, 6.112188, 0)),  # 8
    Part.LineSegment(Vector(4.005, 6.112188, 0), Vector(3.375, 5.112188, 0)),  # 9
    Part.LineSegment(Vector(4.459876, 2.054974, 0), Vector(4.920513, 1.61467, 0)),  # 10
    Part.BSplineCurve([Vector(3.427123, 0.917755, 0), Vector(3.462431, 0.918284, 0), Vector(3.532678, 0.919337, 0), Vector(3.637292, 0.928102, 0), Vector(3.741057, 0.941906, 0), Vector(3.843657, 0.962588, 0), Vector(3.945553, 0.987634, 0), Vector(4.04632, 1.018485, 0), Vector(4.145678, 1.056115, 0), Vector(4.24449, 1.097743, 0), Vector(4.340784, 1.145133, 0), Vector(4.433724, 1.198178, 0), Vector(4.523541, 1.255488, 0), Vector(4.609691, 1.318051, 0), Vector(4.692784, 1.384946, 0), Vector(4.772729, 1.456172, 0), Vector(4.848759, 1.533021, 0), Vector(4.896474, 1.587316, 0), Vector(4.920513, 1.61467, 0)], [4, 1, 1, 1, 1, 1, 1, 1, 1, 1, 1, 1, 1, 1, 1, 1, 4], [0, 0.000105907, 0.000210712, 0.000314726, 0.000419778, 0.000524527, 0.000629426, 0.000735694, 0.00084313, 0.000950994, 0.001057437, 0.001164017, 0.001270463, 0.001376675, 0.001483927, 0.001591509, 0.00170074], False, 3, [1, 1, 1, 1, 1, 1, 1, 1, 1, 1, 1, 1, 1, 1, 1, 1, 1, 1, 1], False),  # 11
    Part.BSplineCurve([Vector(1.6, 2.751889, 0), Vector(1.600599, 2.708861, 0), Vector(1.601786, 2.623589, 0), Vector(1.613491, 2.49765, 0), Vector(1.631447, 2.375393, 0), Vector(1.657002, 2.256966, 0), Vector(1.688776, 2.14196, 0), Vector(1.72922, 2.030895, 0), Vector(1.776064, 1.923165, 0), Vector(1.830754, 1.819771, 0), Vector(1.892059, 1.720585, 0), Vector(1.959082, 1.625856, 0), Vector(2.033113, 1.536526, 0), Vector(2.11345, 1.452206, 0), Vector(2.199424, 1.37235, 0), Vector(2.291876, 1.297525, 0), Vector(2.390895, 1.228213, 0), Vector(2.49547, 1.164358, 0), Vector(2.603611, 1.105715, 0), Vector(2.715395, 1.056544, 0), Vector(2.828643, 1.013137, 0), Vector(2.944122, 0.978077, 0), Vector(3.062087, 0.951631, 0), Vector(3.181636, 0.931674, 0), Vector(3.303748, 0.920504, 0), Vector(3.385736, 0.918677, 0), Vector(3.427123, 0.917755, 0)], [4, 1, 1, 1, 1, 1, 1, 1, 1, 1, 1, 1, 1, 1, 1, 1, 1, 1, 1, 1, 1, 1, 1, 1, 4], [0, 0.000129054, 0.000255754, 0.000379103, 0.000499566, 0.000618987, 0.000736753, 0.000853859, 0.000971154, 0.001087316, 0.001203459, 0.001318993, 0.001435041, 0.001552623, 0.001670772, 0.001791564, 0.001914938, 0.002038212, 0.002160299, 0.00228101, 0.00240189, 0.002521971, 0.002643459, 0.002765271, 0.002889441], False, 3, [1, 1, 1, 1, 1, 1, 1, 1, 1, 1, 1, 1, 1, 1, 1, 1, 1, 1, 1, 1, 1, 1, 1, 1, 1, 1, 1], False),  # 12
    Part.BSplineCurve([Vector(3.417308, 4.597242, 0), Vector(3.352032, 4.595575, 0), Vector(3.224307, 4.592313, 0), Vector(3.037111, 4.568229, 0), Vector(2.859132, 4.527586, 0), Vector(2.69005, 4.470886, 0), Vector(2.530384, 4.397262, 0), Vector(2.379631, 4.307928, 0), Vector(2.238044, 4.202036, 0), Vector(2.106841, 4.081163, 0), Vector(1.988199, 3.947641, 0), Vector(1.883214, 3.80433, 0), Vector(1.796752, 3.6502, 0), Vector(1.723394, 3.488554, 0), Vector(1.668424, 3.316864, 0), Vector(1.62841, 3.136682, 0), Vector(1.604061, 2.947234, 0), Vector(1.601372, 2.817867, 0), Vector(1.6, 2.751889, 0)], [4, 1, 1, 1, 1, 1, 1, 1, 1, 1, 1, 1, 1, 1, 1, 1, 4], [0, 0.000195794, 0.000383114, 0.000565099, 0.000742694, 0.00091712, 0.001091592, 0.001267434, 0.00144656, 0.001625835, 0.00180254, 0.001978381, 0.00215507, 0.00233422, 0.002518103, 0.002708205, 0.002906072], False, 3, [1, 1, 1, 1, 1, 1, 1, 1, 1, 1, 1, 1, 1, 1, 1, 1, 1, 1, 1], False),  # 13
    Part.BSplineCurve([Vector(4.90649, 3.929073, 0), Vector(4.875096, 3.959383, 0), Vector(4.81382, 4.018543, 0), Vector(4.721388, 4.102544, 0), Vector(4.629072, 4.178028, 0), Vector(4.539102, 4.247735, 0), Vector(4.450005, 4.309636, 0), Vector(4.36179, 4.363787, 0), Vector(4.275458, 4.411573, 0), Vector(4.189203, 4.452138, 0), Vector(4.102338, 4.486801, 0), Vector(4.013, 4.516034, 0), Vector(3.921148, 4.541553, 0), Vector(3.82602, 4.561635, 0), Vector(3.728041, 4.577983, 0), Vector(3.626896, 4.588786, 0), Vector(3.523057, 4.596277, 0), Vector(3.452845, 4.596917, 0), Vector(3.417308, 4.597242, 0)], [4, 1, 1, 1, 1, 1, 1, 1, 1, 1, 1, 1, 1, 1, 1, 1, 4], [0, 0.000130917, 0.000255521, 0.000374557, 0.000488566, 0.000596896, 0.00069983, 0.000798983, 0.000892761, 0.00098559, 0.001079375, 0.001174627, 0.001271438, 0.001370911, 0.001472494, 0.001576496, 0.001683088], False, 3, [1, 1, 1, 1, 1, 1, 1, 1, 1, 1, 1, 1, 1, 1, 1, 1, 1, 1, 1], False),  # 14
    Part.LineSegment(Vector(4.90649, 3.929073, 0), Vector(4.459876, 3.460022, 0)),  # 15
    Part.BSplineCurve([Vector(3.414503, 3.969037, 0), Vector(3.46132, 3.967685, 0), Vector(3.553303, 3.965031, 0), Vector(3.688282, 3.944182, 0), Vector(3.817274, 3.910041, 0), Vector(3.920135, 3.868976, 0), Vector(4.000619, 3.829055, 0), Vector(4.061859, 3.792658, 0), Vector(4.124919, 3.75143, 0), Vector(4.189366, 3.70423, 0), Vector(4.255549, 3.651619, 0), Vector(4.322333, 3.592497, 0), Vector(4.391416, 3.528796, 0), Vector(4.436672, 3.483332, 0), Vector(4.459876, 3.460022, 0)], [4, 1, 1, 1, 1, 1, 1, 1, 1, 1, 1, 1, 4], [0, 0.0001404, 0.000275849, 0.000408674, 0.000539911, 0.000607324, 0.00067803, 0.000753481, 0.000833277, 0.000917589, 0.001007026, 0.00110079, 0.001199449], False, 3, [1, 1, 1, 1, 1, 1, 1, 1, 1, 1, 1, 1, 1, 1, 1], False),  # 16
    Part.BSplineCurve([Vector(2.228205, 2.750487, 0), Vector(2.228547, 2.779715, 0), Vector(2.229221, 2.837323, 0), Vector(2.236413, 2.922322, 0), Vector(2.248356, 3.00497, 0), Vector(2.265108, 3.085022, 0), Vector(2.286198, 3.162823, 0), Vector(2.312009, 3.237865, 0), Vector(2.343217, 3.310246, 0), Vector(2.378144, 3.380345, 0), Vector(2.417131, 3.447567, 0), Vector(2.460832, 3.511021, 0), Vector(2.50876, 3.570215, 0), Vector(2.558996, 3.627207, 0), Vector(2.614866, 3.678663, 0), Vector(2.673871, 3.727418, 0), Vector(2.736855, 3.772265, 0), Vector(2.803743, 3.812579, 0), Vector(2.872539, 3.850151, 0), Vector(2.944651, 3.881265, 0), Vector(3.018065, 3.909235, 0), Vector(3.094068, 3.930277, 0), Vector(3.171323, 3.948579, 0), Vector(3.250903, 3.959757, 0), Vector(3.332055, 3.96825, 0), Vector(3.386902, 3.968773, 0), Vector(3.414503, 3.969037, 0)], [4, 1, 1, 1, 1, 1, 1, 1, 1, 1, 1, 1, 1, 1, 1, 1, 1, 1, 1, 1, 1, 1, 1, 1, 4], [0, 0.000087665, 0.00017279, 0.000255683, 0.000338049, 0.000417989, 0.000497368, 0.000575897, 0.000654285, 0.000732207, 0.000808832, 0.000885151, 0.000960612, 0.001036505, 0.001112721, 0.00119015, 0.001268189, 0.001346921, 0.001425086, 0.001503617, 0.001582396, 0.001661486, 0.001741605, 0.0018233, 0.001906059], False, 3, [1, 1, 1, 1, 1, 1, 1, 1, 1, 1, 1, 1, 1, 1, 1, 1, 1, 1, 1, 1, 1, 1, 1, 1, 1, 1, 1], False),  # 17
    Part.BSplineCurve([Vector(3.402584, 1.54596, 0), Vector(3.362102, 1.547079, 0), Vector(3.282216, 1.549288, 0), Vector(3.164933, 1.56552, 0), Vector(3.052703, 1.593019, 0), Vector(2.945438, 1.631243, 0), Vector(2.842606, 1.67938, 0), Vector(2.745166, 1.739884, 0), Vector(2.652593, 1.810737, 0), Vector(2.56597, 1.891814, 0), Vector(2.487768, 1.981052, 0), Vector(2.417307, 2.075035, 0), Vector(2.358944, 2.175427, 0), Vector(2.311303, 2.280762, 0), Vector(2.27376, 2.39108, 0), Vector(2.247115, 2.506374, 0), Vector(2.231677, 2.626904, 0), Vector(2.229375, 2.708843, 0), Vector(2.228205, 2.750487, 0)], [4, 1, 1, 1, 1, 1, 1, 1, 1, 1, 1, 1, 1, 1, 1, 1, 4], [0, 0.000121424, 0.000239616, 0.000354399, 0.000467495, 0.000580715, 0.000694351, 0.000810883, 0.000929933, 0.001049644, 0.001166454, 0.001281773, 0.001397244, 0.001512759, 0.001630789, 0.001751669, 0.001876594], False, 3, [1, 1, 1, 1, 1, 1, 1, 1, 1, 1, 1, 1, 1, 1, 1, 1, 1, 1, 1], False),  # 18
    Part.BSplineCurve([Vector(4.459876, 2.054974, 0), Vector(4.420846, 2.014512, 0), Vector(4.344485, 1.935347, 0), Vector(4.220854, 1.831712, 0), Vector(4.093756, 1.743635, 0), Vector(3.962835, 1.671846, 0), Vector(3.828168, 1.614874, 0), Vector(3.689518, 1.57513, 0), Vector(3.547222, 1.550105, 0), Vector(3.451065, 1.547349, 0), Vector(3.402584, 1.54596, 0)], [4, 1, 1, 1, 1, 1, 1, 1, 4], [0, 0.000168561, 0.000329789, 0.000483038, 0.000631768, 0.000776955, 0.000920741, 0.001063668, 0.001209005], False, 3, [1, 1, 1, 1, 1, 1, 1, 1, 1, 1, 1], False),  # 19
], False)
sketch5.addConstraint([
    Sketcher.Constraint("Block", 11),
    Sketcher.Constraint("Block", 12),
    Sketcher.Constraint("Block", 13),
    Sketcher.Constraint("Block", 14),
    Sketcher.Constraint("Block", 16),
    Sketcher.Constraint("Block", 17),
    Sketcher.Constraint("Block", 18),
    Sketcher.Constraint("Block", 19),
    Sketcher.Constraint("Coincident", 0, 2, 1, 1),
    Sketcher.Constraint("Coincident", 1, 2, 2, 1),
    Sketcher.Constraint("Coincident", 2, 2, 3, 1),
    Sketcher.Constraint("Coincident", 3, 2, 4, 1),
    Sketcher.Constraint("Coincident", 4, 2, 5, 1),
    Sketcher.Constraint("Coincident", 5, 2, 6, 1),
    Sketcher.Constraint("Coincident", 6, 2, 7, 1),
    Sketcher.Constraint("Coincident", 7, 2, 8, 1),
    Sketcher.Constraint("Coincident", 8, 2, 9, 1),
    Sketcher.Constraint("Coincident", 9, 2, 0, 1),
    Sketcher.Constraint("Coincident", 10, 2, 11, 2),
    Sketcher.Constraint("Coincident", 14, 1, 15, 1),
    Sketcher.Constraint("Coincident", 15, 2, 16, 2),
    Sketcher.Constraint("Coincident", 19, 1, 10, 1),
    Sketcher.Constraint("Horizontal", 1),
    Sketcher.Constraint("Vertical", 2),
    Sketcher.Constraint("Horizontal", 3),
    Sketcher.Constraint("Horizontal", 6),
    Sketcher.Constraint("Vertical", 7),
    Sketcher.Constraint("Horizontal", 8),
    Sketcher.Constraint("Parallel", 0, 5),
    Sketcher.Constraint("Horizontal", 3, 2, 5, 2),
    Sketcher.Constraint("Horizontal", 1, 2, 7, 2),
    Sketcher.Constraint("Vertical", 0, 2, 3, 2),
    Sketcher.Constraint("Vertical", 4, 2, 9, 2),
    Sketcher.Constraint("Equal", 3, 6),
    Sketcher.Constraint("Equal", 0, 4),
    Sketcher.Constraint("DistanceX", 1, 1, 1, 2, Q("0.4 mm")),
    Sketcher.Constraint("DistanceY", 2, 2, 4, 2, Q("1 mm")),
    Sketcher.Constraint("DistanceX", 8, 1, 8, 2, Q("0.43 mm")),
    Sketcher.Constraint("DistanceX", 2, 2, 4, 2, Q("0.2 mm")),
    Sketcher.Constraint("DistanceX", -1, 1, 0, 2, Q("2.775 mm")),
    Sketcher.Constraint("DistanceY", 2, 1, 2, 2, Q("2.736572 mm")),
    Sketcher.Constraint("DistanceY", -1, 1, 2, 2, Q("8.84876 mm")),
])
pocket3 = body.newObject("PartDesign::Pocket", "Pocket002")
pocket3.Profile = sketch5
pocket3.Length = 0.2
pocket3.Reversed = True

doc.recompute()
